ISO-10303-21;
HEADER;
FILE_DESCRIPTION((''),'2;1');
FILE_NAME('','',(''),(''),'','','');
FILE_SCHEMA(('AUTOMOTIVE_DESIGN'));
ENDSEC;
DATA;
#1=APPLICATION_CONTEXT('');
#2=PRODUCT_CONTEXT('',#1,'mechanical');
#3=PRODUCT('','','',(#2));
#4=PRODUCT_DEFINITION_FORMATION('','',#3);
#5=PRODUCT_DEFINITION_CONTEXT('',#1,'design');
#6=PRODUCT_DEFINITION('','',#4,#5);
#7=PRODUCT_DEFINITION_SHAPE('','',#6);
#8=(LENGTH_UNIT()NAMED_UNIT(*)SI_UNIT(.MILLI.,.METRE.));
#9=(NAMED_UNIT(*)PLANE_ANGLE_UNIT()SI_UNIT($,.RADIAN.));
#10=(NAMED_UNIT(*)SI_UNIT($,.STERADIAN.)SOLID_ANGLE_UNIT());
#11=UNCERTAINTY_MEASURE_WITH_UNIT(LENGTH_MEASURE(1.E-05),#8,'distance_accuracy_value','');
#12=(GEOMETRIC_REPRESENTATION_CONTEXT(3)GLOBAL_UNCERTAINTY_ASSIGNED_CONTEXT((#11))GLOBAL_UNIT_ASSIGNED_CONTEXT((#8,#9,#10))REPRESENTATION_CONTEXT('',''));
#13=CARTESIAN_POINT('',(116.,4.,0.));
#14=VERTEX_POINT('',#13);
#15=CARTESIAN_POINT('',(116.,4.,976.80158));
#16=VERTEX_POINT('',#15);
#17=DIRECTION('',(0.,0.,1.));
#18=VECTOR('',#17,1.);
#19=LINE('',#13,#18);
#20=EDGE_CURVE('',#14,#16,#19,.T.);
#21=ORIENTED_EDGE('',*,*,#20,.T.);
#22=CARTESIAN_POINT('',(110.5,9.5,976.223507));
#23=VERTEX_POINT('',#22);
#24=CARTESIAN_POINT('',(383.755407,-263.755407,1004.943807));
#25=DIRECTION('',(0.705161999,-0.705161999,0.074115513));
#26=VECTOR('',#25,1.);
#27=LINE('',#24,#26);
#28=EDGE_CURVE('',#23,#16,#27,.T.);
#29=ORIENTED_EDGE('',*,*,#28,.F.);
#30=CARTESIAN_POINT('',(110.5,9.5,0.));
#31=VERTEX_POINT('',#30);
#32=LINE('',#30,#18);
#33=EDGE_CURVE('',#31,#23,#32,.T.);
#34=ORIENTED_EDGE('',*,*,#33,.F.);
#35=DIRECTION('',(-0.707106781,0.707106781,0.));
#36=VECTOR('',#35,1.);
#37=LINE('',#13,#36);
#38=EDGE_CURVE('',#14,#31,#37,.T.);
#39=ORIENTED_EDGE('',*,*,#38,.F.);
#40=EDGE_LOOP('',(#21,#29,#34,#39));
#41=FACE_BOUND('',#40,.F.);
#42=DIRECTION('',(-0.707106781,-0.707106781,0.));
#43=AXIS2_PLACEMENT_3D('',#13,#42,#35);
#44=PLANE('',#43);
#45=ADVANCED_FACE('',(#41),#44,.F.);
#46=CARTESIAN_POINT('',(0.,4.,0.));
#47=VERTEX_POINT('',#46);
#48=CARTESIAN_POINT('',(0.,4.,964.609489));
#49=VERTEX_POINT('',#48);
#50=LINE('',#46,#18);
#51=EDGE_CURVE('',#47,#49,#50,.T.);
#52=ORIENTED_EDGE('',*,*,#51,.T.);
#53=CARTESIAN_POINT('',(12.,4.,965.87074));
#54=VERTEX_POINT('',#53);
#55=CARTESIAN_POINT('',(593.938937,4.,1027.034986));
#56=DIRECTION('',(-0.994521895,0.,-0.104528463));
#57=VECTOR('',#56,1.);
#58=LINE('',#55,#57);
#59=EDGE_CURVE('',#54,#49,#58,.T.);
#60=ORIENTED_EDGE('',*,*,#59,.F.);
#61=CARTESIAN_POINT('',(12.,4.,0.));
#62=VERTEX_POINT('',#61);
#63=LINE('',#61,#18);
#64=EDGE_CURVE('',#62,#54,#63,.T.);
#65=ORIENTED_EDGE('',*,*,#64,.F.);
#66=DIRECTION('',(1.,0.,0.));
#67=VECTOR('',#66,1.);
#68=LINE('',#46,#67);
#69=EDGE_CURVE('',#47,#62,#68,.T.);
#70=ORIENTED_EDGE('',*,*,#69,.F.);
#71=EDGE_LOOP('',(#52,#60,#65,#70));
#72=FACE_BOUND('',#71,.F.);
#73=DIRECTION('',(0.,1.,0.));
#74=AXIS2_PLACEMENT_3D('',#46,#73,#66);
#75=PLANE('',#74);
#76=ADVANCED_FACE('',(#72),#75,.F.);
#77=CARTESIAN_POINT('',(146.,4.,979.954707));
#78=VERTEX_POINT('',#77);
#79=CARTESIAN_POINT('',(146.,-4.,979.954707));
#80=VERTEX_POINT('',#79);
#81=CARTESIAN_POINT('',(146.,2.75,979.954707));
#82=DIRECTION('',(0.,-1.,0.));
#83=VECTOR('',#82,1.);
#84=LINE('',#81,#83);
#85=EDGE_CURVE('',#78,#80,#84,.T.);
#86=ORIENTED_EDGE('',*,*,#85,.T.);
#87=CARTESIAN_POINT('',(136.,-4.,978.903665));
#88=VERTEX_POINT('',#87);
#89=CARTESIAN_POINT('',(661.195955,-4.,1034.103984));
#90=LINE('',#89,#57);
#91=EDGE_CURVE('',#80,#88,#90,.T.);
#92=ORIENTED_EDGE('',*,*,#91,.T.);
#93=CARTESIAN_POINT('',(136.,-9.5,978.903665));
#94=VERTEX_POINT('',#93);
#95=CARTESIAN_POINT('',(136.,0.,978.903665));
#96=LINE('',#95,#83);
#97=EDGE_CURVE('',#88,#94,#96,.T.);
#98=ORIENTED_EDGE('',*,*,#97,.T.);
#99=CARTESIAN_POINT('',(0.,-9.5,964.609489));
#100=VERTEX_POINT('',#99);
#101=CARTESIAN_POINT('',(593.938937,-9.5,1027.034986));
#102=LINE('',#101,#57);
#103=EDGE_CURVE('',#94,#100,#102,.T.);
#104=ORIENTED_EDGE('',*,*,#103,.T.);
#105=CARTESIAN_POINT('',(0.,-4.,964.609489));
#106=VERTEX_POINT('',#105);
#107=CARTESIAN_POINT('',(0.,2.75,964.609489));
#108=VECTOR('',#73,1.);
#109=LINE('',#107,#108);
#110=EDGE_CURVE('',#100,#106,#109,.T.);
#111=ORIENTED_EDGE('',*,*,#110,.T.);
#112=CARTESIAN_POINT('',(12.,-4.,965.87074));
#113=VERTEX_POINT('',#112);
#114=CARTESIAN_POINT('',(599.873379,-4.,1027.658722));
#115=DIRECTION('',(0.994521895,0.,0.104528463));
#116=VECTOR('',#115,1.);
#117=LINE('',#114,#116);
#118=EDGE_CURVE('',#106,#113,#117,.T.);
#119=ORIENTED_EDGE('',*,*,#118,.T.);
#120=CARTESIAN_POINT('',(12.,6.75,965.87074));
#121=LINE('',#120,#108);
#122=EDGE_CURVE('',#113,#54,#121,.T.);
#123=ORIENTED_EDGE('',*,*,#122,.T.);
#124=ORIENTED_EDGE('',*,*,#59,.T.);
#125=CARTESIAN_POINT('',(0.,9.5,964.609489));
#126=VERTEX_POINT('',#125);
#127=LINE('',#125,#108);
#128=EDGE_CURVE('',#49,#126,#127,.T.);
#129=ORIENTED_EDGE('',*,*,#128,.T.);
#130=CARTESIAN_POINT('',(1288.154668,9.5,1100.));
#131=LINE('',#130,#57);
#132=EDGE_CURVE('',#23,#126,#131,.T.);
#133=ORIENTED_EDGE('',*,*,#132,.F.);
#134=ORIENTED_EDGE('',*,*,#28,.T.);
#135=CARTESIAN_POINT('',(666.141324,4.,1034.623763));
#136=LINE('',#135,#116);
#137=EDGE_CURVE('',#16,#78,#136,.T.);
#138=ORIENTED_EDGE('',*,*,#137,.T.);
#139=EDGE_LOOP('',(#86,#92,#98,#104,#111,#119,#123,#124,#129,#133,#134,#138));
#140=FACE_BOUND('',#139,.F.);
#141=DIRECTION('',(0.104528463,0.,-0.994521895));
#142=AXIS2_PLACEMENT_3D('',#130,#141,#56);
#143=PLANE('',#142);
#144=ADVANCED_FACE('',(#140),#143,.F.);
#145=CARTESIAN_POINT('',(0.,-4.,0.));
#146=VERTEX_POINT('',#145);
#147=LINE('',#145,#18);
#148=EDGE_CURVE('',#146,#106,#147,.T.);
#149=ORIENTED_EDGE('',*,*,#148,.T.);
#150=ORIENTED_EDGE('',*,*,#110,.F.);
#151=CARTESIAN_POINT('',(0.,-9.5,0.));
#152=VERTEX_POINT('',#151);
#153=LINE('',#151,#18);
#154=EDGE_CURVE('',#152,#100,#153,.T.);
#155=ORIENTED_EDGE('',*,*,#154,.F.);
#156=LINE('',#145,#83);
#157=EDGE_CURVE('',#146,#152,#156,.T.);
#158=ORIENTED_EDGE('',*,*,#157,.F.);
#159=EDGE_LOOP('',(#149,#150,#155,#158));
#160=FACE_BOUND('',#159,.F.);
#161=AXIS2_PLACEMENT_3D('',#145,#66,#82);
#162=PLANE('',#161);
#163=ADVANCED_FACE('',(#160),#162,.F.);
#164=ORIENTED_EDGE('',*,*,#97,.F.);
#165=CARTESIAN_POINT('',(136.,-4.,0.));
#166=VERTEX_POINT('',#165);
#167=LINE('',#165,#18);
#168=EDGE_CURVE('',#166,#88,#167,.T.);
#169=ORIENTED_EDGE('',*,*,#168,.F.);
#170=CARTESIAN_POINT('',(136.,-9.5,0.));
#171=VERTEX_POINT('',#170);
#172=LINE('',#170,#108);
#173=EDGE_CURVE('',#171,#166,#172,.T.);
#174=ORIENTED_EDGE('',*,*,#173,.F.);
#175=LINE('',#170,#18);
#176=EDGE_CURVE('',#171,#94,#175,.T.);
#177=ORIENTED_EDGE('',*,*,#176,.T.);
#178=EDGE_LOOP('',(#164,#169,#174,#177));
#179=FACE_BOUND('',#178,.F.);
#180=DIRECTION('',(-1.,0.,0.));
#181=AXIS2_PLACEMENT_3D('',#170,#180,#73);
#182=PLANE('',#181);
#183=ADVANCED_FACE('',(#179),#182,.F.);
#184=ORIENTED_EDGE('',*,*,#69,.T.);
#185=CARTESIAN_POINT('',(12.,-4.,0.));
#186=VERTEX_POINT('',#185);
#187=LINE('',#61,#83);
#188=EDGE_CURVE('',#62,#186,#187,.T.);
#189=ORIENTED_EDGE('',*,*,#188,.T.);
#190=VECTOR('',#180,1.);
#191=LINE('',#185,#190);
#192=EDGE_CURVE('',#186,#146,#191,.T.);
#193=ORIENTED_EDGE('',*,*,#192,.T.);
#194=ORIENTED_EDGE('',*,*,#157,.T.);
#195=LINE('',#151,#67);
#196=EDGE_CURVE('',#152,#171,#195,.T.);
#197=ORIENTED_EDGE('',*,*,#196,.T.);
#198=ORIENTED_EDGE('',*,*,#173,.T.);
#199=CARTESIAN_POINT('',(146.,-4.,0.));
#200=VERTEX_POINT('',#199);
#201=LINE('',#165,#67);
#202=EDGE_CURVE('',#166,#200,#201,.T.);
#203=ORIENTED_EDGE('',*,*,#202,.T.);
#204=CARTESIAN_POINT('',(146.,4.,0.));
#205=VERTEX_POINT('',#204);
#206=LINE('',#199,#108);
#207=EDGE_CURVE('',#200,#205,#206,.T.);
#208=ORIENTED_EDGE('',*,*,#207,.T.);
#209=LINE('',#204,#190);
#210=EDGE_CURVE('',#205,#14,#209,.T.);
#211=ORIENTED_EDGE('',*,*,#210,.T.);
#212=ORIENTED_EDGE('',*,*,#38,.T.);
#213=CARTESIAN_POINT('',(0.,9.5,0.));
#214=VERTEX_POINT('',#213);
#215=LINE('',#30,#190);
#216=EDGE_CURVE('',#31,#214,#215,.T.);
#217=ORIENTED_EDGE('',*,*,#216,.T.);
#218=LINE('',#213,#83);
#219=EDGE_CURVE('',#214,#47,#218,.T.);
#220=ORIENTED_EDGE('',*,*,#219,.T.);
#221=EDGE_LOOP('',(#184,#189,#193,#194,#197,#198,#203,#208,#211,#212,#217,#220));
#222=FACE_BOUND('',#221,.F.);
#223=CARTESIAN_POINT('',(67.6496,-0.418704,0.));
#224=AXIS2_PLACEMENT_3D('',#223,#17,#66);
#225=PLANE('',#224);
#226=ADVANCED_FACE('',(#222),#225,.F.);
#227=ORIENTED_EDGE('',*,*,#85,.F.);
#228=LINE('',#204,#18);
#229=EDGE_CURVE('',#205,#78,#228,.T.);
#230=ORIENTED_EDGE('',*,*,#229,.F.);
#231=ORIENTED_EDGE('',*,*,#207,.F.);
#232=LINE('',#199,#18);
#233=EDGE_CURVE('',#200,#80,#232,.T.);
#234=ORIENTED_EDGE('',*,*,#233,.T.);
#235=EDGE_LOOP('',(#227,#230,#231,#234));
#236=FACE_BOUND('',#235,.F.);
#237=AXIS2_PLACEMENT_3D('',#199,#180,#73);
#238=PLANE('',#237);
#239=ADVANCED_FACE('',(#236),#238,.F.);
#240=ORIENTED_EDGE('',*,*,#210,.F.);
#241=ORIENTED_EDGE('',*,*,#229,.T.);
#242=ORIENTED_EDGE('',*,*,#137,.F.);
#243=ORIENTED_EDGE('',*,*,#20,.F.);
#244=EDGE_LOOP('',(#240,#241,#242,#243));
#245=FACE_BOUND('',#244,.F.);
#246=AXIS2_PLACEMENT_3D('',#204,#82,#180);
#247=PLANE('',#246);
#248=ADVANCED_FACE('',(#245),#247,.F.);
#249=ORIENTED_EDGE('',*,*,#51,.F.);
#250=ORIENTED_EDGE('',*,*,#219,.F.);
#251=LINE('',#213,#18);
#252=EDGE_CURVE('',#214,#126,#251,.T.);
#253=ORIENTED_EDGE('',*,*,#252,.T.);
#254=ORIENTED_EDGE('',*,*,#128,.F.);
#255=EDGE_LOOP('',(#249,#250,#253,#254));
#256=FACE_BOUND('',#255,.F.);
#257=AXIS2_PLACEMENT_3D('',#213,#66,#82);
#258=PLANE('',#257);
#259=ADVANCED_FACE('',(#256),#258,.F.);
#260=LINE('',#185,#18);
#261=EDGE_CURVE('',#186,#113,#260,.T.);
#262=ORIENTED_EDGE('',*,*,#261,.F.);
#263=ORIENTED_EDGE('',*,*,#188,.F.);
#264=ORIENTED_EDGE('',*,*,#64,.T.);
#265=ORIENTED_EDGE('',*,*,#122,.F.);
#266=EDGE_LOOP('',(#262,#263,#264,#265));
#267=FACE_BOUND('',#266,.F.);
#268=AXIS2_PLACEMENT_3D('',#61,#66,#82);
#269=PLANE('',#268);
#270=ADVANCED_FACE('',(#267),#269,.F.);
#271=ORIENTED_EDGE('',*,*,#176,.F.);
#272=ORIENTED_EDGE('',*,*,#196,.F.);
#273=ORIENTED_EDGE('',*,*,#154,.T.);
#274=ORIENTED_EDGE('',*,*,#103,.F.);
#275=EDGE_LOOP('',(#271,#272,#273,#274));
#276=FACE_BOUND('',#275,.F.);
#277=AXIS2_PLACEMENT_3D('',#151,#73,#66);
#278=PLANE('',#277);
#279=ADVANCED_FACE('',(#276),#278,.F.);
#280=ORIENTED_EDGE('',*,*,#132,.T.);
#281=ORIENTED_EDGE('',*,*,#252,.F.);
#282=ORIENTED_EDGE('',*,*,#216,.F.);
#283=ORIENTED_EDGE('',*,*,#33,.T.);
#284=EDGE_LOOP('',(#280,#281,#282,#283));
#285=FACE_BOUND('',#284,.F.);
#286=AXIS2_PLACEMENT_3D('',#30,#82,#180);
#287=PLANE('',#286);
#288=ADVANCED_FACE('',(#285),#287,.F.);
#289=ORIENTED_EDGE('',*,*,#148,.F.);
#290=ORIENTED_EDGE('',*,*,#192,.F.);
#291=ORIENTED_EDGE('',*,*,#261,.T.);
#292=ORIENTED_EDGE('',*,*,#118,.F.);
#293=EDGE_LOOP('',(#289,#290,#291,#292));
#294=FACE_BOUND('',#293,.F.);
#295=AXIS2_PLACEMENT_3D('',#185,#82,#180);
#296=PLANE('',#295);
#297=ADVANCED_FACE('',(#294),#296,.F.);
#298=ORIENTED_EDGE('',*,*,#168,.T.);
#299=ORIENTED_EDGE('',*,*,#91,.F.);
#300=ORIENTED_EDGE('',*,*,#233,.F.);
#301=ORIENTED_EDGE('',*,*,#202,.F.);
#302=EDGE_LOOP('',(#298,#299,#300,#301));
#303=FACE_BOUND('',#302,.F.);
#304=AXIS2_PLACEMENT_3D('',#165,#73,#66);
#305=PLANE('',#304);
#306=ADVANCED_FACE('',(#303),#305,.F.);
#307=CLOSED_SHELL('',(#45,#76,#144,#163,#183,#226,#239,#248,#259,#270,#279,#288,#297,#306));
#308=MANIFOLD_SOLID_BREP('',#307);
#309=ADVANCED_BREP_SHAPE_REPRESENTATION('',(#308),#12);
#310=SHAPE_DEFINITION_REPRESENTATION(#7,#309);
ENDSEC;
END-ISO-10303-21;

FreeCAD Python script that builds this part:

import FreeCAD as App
import Part
import Sketcher
from FreeCAD import Vector
Q = App.Units.Quantity

doc = App.newDocument("Part")
body = doc.addObject("PartDesign::Body", "Body")

sketch1 = body.newObject("Sketcher::SketchObject", "Sketch")
sketch1.AttachmentSupport = (doc.getObject("XY_Plane"), [""])
sketch1.MapMode = "FlatFace"
sketch1.addGeometry([
    Part.LineSegment(Vector(0, -4, 0), Vector(0, -9.5, 0)),
    Part.LineSegment(Vector(0, -9.5, 0), Vector(136, -9.5, 0)),
    Part.LineSegment(Vector(136, -9.5, 0), Vector(136, -4, 0)),
    Part.LineSegment(Vector(136, -4, 0), Vector(146, -4, 0)),
    Part.LineSegment(Vector(146, -4, 0), Vector(146, 4, 0)),
    Part.LineSegment(Vector(146, 4, 0), Vector(116, 4, 0)),
    Part.LineSegment(Vector(116, 4, 0), Vector(110.5, 9.5, 0)),
    Part.LineSegment(Vector(110.5, 9.5, 0), Vector(0, 9.5, 0)),
    Part.LineSegment(Vector(0, 9.5, 0), Vector(0, 4, 0)),
    Part.LineSegment(Vector(0, 4, 0), Vector(12, 4, 0)),
    Part.LineSegment(Vector(12, 4, 0), Vector(12, -4, 0)),
    Part.LineSegment(Vector(12, -4, 0), Vector(0, -4, 0)),
], False)
sketch1.addConstraint([
    Sketcher.Constraint("Coincident", 0, 2, 1, 1),
    Sketcher.Constraint("Coincident", 1, 2, 2, 1),
    Sketcher.Constraint("Coincident", 2, 2, 3, 1),
    Sketcher.Constraint("Coincident", 3, 2, 4, 1),
    Sketcher.Constraint("Coincident", 4, 2, 5, 1),
    Sketcher.Constraint("Coincident", 5, 2, 6, 1),
    Sketcher.Constraint("Coincident", 6, 2, 7, 1),
    Sketcher.Constraint("Coincident", 7, 2, 8, 1),
    Sketcher.Constraint("Coincident", 8, 2, 9, 1),
    Sketcher.Constraint("Coincident", 9, 2, 10, 1),
    Sketcher.Constraint("Coincident", 10, 2, 11, 1),
    Sketcher.Constraint("Coincident", 11, 2, 0, 1),
    Sketcher.Constraint("Vertical", 0),
    Sketcher.Constraint("Horizontal", 1),
    Sketcher.Constraint("Vertical", 2),
    Sketcher.Constraint("Horizontal", 3),
    Sketcher.Constraint("Vertical", 4),
    Sketcher.Constraint("Horizontal", 5),
    Sketcher.Constraint("Horizontal", 7),
    Sketcher.Constraint("Vertical", 8),
    Sketcher.Constraint("Horizontal", 9),
    Sketcher.Constraint("Vertical", 10),
    Sketcher.Constraint("Horizontal", 11),
    Sketcher.Constraint("Symmetric", 0, 2, 7, 2, -1, 1),
    Sketcher.Constraint("Symmetric", 8, 2, 11, 2, -1),
    Sketcher.Constraint("Horizontal", 5, 2, 8, 2),
    Sketcher.Constraint("Horizontal", 3, 2, 10, 2),
    Sketcher.Constraint("DistanceX", 1, 1, 1, 2, Q("136 mm")),
    Sketcher.Constraint("DistanceX", 3, 1, 3, 2, Q("10 mm")),
    Sketcher.Constraint("DistanceX", 5, 2, 5, 1, Q("30 mm")),
    Sketcher.Constraint("DistanceX", 9, 1, 9, 2, Q("12 mm")),
    Sketcher.Constraint("DistanceY", 4, 1, 4, 2, Q("8 mm")),
    Sketcher.Constraint("Angle", 6, Q("135 deg")),
    Sketcher.Constraint("DistanceX", 7, 2, 7, 1, Q("110.5 mm")),
])
pad1 = body.newObject("PartDesign::Pad", "Pad")
pad1.Profile = sketch1
pad1.Length = 1100

sketch2 = body.newObject("Sketcher::SketchObject", "Sketch001")
sketch2.AttachmentSupport = (doc.getObject("XZ_Plane"), [""])
sketch2.MapMode = "FlatFace"
sketch2.AttachmentOffset = App.Placement(Vector(0, 0, -9.5), App.Rotation())
sketch2.addGeometry([
    Part.LineSegment(Vector(1288.154668, 1100, 0), Vector(-139, 950, 0)),
    Part.LineSegment(Vector(-139, 950, 0), Vector(-139, 1100, 0)),
    Part.LineSegment(Vector(-139, 1100, 0), Vector(1288.154668, 1100, 0)),
], False)
sketch2.addConstraint([
    Sketcher.Constraint("Coincident", 0, 2, 1, 1),
    Sketcher.Constraint("Coincident", 1, 2, 2, 1),
    Sketcher.Constraint("Coincident", 2, 2, 0, 1),
    Sketcher.Constraint("Vertical", 1),
    Sketcher.Constraint("Horizontal", 2),
    Sketcher.Constraint("DistanceY", 1, 1, 1, 2, Q("150 mm")),
    Sketcher.Constraint("Angle", 0, Q("-174 deg")),
    Sketcher.Constraint("DistanceX", 0, 2, -1, 1, Q("139 mm")),
    Sketcher.Constraint("DistanceY", -1, 1, 0, 2, Q("950 mm")),
])
pocket1 = body.newObject("PartDesign::Pocket", "Pocket")
pocket1.Profile = sketch2
pocket1.Type = "ThroughAll"
pocket1.Reversed = True

doc.recompute()
